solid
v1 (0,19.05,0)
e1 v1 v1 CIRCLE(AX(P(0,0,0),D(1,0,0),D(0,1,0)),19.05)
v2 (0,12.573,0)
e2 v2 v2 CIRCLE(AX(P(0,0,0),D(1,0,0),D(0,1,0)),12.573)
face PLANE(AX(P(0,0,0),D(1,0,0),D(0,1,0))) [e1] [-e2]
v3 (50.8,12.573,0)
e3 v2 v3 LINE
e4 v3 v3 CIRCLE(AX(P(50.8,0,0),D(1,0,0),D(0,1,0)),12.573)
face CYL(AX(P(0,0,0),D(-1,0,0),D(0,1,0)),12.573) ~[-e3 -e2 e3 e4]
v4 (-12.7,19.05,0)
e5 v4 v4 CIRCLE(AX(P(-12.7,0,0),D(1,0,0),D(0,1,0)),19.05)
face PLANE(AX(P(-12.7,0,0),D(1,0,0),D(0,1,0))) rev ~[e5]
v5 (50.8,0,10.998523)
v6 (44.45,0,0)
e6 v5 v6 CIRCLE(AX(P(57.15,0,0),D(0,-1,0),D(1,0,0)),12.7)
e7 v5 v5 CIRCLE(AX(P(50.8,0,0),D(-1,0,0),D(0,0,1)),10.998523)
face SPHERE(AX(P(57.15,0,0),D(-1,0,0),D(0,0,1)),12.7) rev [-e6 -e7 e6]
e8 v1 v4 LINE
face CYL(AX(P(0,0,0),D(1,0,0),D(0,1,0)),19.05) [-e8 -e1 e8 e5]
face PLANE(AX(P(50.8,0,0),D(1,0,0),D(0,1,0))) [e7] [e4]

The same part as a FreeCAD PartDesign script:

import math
import FreeCAD as App
import Part
import Sketcher
Q = App.Units.Quantity

doc = App.newDocument("Part")
body = doc.addObject("PartDesign::Body", "Body")

# Sketch on YZ plane
sketch1 = body.newObject("Sketcher::SketchObject", "Sketch")
sketch1.AttachmentSupport = (doc.getObject("YZ_Plane"), [""])
sketch1.MapMode = "FlatFace"
sketch1.addGeometry(Part.Circle(App.Vector(0, 0, 0), App.Vector(0, 0, 1), 19), False)
sketch1.addConstraint([
    Sketcher.Constraint("Coincident", 0, 3, -1, 1),
    Sketcher.Constraint("Diameter", 0, Q("1.5 in")),
])
pad1 = body.newObject("PartDesign::Pad", "Pad")
pad1.Profile = sketch1
pad1.Length = Q("0.5 in")
pad1.Reversed = True

# Sketch on YZ plane
sketch2 = body.newObject("Sketcher::SketchObject", "Sketch001")
sketch2.AttachmentSupport = (doc.getObject("YZ_Plane"), [""])
sketch2.MapMode = "FlatFace"
sketch2.addGeometry(Part.Circle(App.Vector(0, 0, 0), App.Vector(0, 0, 1), 13), False)
sketch2.addConstraint([
    Sketcher.Constraint("Coincident", 0, 3, -1, 1),
    Sketcher.Constraint("Diameter", 0, Q("0.99 in")),
])
pad2 = body.newObject("PartDesign::Pad", "Pad001")
pad2.Profile = sketch2
pad2.Length = Q("2 in")

# Sketch on XZ plane
sketch3 = body.newObject("Sketcher::SketchObject", "Sketch002")
sketch3.AttachmentSupport = (doc.getObject("XZ_Plane"), [""])
sketch3.MapMode = "FlatFace"
sketch3.addGeometry([
    Part.ArcOfCircle(Part.Circle(App.Vector(57, 0, 0), App.Vector(0, 0, 1), 13), math.radians(0), math.radians(180)),
    Part.LineSegment(App.Vector(44, 0, 0), App.Vector(70, 0, 0)),
], False)
sketch3.addConstraint([
    Sketcher.Constraint("Coincident", 0, 1, 1, 2),
    Sketcher.Constraint("Coincident", 1, 1, 0, 2),
    Sketcher.Constraint("Horizontal", 1),
    Sketcher.Constraint("PointOnObject", 0, 3, -1),
    Sketcher.Constraint("PointOnObject", 0, 1, -1),
    Sketcher.Constraint("Radius", 0, Q("0.5 in")),
    Sketcher.Constraint("DistanceX", -1, 1, 0, 3, Q("2.25 in")),
])
groove = body.newObject("PartDesign::Groove", "Groove")
groove.Profile = sketch3
groove.ReferenceAxis = (sketch3, ["H_Axis"])
groove.Angle = 360

doc.recompute()
